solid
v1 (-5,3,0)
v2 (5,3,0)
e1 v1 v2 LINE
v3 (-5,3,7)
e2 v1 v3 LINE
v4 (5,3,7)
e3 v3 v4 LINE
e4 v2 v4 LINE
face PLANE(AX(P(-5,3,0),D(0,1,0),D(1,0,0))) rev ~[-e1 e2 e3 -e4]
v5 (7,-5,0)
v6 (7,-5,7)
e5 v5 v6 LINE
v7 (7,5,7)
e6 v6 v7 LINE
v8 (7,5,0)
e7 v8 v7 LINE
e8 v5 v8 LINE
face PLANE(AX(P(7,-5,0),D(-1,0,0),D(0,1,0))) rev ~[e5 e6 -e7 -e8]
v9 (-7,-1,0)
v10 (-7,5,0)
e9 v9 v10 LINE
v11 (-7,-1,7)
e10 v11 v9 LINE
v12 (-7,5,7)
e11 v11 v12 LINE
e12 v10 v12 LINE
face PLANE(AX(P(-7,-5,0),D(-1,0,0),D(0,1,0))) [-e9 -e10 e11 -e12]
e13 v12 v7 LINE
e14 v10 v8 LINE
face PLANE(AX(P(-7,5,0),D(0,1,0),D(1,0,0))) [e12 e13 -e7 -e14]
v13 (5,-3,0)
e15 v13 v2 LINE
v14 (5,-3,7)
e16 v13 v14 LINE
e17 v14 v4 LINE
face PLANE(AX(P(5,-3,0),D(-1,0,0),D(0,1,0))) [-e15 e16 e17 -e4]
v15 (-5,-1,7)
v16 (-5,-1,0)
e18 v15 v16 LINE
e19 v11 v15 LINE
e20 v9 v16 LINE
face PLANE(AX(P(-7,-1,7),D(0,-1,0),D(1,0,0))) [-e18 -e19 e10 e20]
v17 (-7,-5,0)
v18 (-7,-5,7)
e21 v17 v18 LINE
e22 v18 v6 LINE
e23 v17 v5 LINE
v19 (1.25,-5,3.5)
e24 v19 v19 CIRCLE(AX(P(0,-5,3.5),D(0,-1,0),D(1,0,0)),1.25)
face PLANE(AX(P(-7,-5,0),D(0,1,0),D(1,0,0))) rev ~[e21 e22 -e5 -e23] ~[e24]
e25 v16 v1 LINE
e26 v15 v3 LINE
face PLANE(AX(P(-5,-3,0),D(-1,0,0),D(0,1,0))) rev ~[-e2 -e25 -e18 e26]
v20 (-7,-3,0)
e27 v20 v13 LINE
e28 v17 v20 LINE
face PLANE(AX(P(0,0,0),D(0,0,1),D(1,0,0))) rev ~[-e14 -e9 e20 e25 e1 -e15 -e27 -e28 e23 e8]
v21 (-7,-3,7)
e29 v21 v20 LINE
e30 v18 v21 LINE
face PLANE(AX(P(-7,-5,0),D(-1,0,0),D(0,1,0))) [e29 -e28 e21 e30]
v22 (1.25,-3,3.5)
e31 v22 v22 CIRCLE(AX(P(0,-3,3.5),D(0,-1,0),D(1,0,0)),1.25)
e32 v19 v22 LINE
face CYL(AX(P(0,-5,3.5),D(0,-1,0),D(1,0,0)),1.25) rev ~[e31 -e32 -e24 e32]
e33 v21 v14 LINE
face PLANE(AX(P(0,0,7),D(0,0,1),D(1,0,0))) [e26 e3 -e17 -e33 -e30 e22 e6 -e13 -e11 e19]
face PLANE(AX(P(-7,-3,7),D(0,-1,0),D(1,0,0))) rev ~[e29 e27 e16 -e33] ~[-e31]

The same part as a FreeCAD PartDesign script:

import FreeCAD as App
import Part
import Sketcher

V = App.Vector
Q = App.Units.Quantity


def add_polygon(sketch, points):
    """Adds a closed chain of lines whose ends are joined by coincident constraints."""
    first, n = sketch.GeometryCount, len(points)
    for a, b in zip(points, points[1:] + points[:1]):
        sketch.addGeometry(Part.LineSegment(App.Vector(*a, 0), App.Vector(*b, 0)), False)
    for i in range(n):
        sketch.addConstraint(Sketcher.Constraint("Coincident", first + i, 2, first + (i + 1) % n, 1))

doc = App.newDocument("Part")
body = doc.addObject("PartDesign::Body", "Body")

# Sketch on XY plane
sketch1 = body.newObject("Sketcher::SketchObject", "Sketch")
sketch1.AttachmentSupport = (doc.getObject("XY_Plane"), [""])
sketch1.MapMode = "FlatFace"
add_polygon(sketch1, [(-7, 5), (-7, -5), (7, -5), (7, 5)])  # lines 0-3
add_polygon(sketch1, [(5, -3), (-5, -3), (-5, 3), (5, 3)])  # lines 4-7
sketch1.addConstraint(Sketcher.Constraint("Vertical", 0))
sketch1.addConstraint(Sketcher.Constraint("Horizontal", 1))
sketch1.addConstraint(Sketcher.Constraint("Vertical", 2))
sketch1.addConstraint(Sketcher.Constraint("Horizontal", 3))
sketch1.addConstraint(Sketcher.Constraint("Horizontal", 4))
sketch1.addConstraint(Sketcher.Constraint("Vertical", 5))
sketch1.addConstraint(Sketcher.Constraint("Horizontal", 6))
sketch1.addConstraint(Sketcher.Constraint("Vertical", 7))
sketch1.addConstraint(Sketcher.Constraint("Symmetric", 0, 2, 2, 2, -1, 1))
sketch1.addConstraint(Sketcher.Constraint("Symmetric", 4, 2, 6, 2, -1, 1))
sketch1.addConstraint(Sketcher.Constraint("Equal", 6, 0))
sketch1.addConstraint(Sketcher.Constraint("DistanceX", 1, 1, 1, 2, Q("14 mm")))
sketch1.addConstraint(Sketcher.Constraint("DistanceX", 4, 2, 4, 1, Q("10 mm")))
sketch1.addConstraint(Sketcher.Constraint("DistanceY", 5, 1, 5, 2, Q("6 mm")))
pad1 = body.newObject("PartDesign::Pad", "Pad")
pad1.Profile = sketch1
pad1.Length = 7

# Sketch on XY plane
sketch2 = body.newObject("Sketcher::SketchObject", "Sketch001")
sketch2.AttachmentSupport = (doc.getObject("XY_Plane"), [""])
sketch2.MapMode = "FlatFace"
sketch2.AttachmentOffset = App.Placement(V(0, 0, 7), App.Rotation())
add_polygon(sketch2, [(-7, -1), (-7, -3), (-5, -3), (-5, -1)])  # lines 0-3
sketch2.addConstraint(Sketcher.Constraint("Vertical", 0))
sketch2.addConstraint(Sketcher.Constraint("Horizontal", 1))
sketch2.addConstraint(Sketcher.Constraint("Vertical", 2))
sketch2.addConstraint(Sketcher.Constraint("Horizontal", 3))
sketch2.addConstraint(Sketcher.Constraint("Equal", 3, 0))
sketch2.addConstraint(Sketcher.Constraint("DistanceX", 1, 1, 1, 2, Q("2 mm")))
sketch2.addConstraint(Sketcher.Constraint("DistanceX", 0, 2, -1, 1, Q("7 mm")))
sketch2.addConstraint(Sketcher.Constraint("DistanceY", 0, 2, -1, 1, Q("3 mm")))
pocket1 = body.newObject("PartDesign::Pocket", "Pocket")
pocket1.Profile = sketch2
pocket1.Length = 10

# Sketch on XZ plane
sketch3 = body.newObject("Sketcher::SketchObject", "Sketch002")
sketch3.AttachmentSupport = (doc.getObject("XZ_Plane"), [""])
sketch3.MapMode = "FlatFace"
sketch3.AttachmentOffset = App.Placement(V(0, 0, 5), App.Rotation())
sketch3.addGeometry(Part.Circle(V(0, 3.5, 0), V(0, 0, 1), 1.2), False)
sketch3.addConstraint(Sketcher.Constraint("PointOnObject", 0, 3, -2))
sketch3.addConstraint(Sketcher.Constraint("Diameter", 0, Q("2.5 mm")))
sketch3.addConstraint(Sketcher.Constraint("DistanceY", -1, 1, 0, 3, Q("3.5 mm")))
pocket2 = body.newObject("PartDesign::Pocket", "Pocket001")
pocket2.Profile = sketch3
pocket2.Length = 5

doc.recompute()
